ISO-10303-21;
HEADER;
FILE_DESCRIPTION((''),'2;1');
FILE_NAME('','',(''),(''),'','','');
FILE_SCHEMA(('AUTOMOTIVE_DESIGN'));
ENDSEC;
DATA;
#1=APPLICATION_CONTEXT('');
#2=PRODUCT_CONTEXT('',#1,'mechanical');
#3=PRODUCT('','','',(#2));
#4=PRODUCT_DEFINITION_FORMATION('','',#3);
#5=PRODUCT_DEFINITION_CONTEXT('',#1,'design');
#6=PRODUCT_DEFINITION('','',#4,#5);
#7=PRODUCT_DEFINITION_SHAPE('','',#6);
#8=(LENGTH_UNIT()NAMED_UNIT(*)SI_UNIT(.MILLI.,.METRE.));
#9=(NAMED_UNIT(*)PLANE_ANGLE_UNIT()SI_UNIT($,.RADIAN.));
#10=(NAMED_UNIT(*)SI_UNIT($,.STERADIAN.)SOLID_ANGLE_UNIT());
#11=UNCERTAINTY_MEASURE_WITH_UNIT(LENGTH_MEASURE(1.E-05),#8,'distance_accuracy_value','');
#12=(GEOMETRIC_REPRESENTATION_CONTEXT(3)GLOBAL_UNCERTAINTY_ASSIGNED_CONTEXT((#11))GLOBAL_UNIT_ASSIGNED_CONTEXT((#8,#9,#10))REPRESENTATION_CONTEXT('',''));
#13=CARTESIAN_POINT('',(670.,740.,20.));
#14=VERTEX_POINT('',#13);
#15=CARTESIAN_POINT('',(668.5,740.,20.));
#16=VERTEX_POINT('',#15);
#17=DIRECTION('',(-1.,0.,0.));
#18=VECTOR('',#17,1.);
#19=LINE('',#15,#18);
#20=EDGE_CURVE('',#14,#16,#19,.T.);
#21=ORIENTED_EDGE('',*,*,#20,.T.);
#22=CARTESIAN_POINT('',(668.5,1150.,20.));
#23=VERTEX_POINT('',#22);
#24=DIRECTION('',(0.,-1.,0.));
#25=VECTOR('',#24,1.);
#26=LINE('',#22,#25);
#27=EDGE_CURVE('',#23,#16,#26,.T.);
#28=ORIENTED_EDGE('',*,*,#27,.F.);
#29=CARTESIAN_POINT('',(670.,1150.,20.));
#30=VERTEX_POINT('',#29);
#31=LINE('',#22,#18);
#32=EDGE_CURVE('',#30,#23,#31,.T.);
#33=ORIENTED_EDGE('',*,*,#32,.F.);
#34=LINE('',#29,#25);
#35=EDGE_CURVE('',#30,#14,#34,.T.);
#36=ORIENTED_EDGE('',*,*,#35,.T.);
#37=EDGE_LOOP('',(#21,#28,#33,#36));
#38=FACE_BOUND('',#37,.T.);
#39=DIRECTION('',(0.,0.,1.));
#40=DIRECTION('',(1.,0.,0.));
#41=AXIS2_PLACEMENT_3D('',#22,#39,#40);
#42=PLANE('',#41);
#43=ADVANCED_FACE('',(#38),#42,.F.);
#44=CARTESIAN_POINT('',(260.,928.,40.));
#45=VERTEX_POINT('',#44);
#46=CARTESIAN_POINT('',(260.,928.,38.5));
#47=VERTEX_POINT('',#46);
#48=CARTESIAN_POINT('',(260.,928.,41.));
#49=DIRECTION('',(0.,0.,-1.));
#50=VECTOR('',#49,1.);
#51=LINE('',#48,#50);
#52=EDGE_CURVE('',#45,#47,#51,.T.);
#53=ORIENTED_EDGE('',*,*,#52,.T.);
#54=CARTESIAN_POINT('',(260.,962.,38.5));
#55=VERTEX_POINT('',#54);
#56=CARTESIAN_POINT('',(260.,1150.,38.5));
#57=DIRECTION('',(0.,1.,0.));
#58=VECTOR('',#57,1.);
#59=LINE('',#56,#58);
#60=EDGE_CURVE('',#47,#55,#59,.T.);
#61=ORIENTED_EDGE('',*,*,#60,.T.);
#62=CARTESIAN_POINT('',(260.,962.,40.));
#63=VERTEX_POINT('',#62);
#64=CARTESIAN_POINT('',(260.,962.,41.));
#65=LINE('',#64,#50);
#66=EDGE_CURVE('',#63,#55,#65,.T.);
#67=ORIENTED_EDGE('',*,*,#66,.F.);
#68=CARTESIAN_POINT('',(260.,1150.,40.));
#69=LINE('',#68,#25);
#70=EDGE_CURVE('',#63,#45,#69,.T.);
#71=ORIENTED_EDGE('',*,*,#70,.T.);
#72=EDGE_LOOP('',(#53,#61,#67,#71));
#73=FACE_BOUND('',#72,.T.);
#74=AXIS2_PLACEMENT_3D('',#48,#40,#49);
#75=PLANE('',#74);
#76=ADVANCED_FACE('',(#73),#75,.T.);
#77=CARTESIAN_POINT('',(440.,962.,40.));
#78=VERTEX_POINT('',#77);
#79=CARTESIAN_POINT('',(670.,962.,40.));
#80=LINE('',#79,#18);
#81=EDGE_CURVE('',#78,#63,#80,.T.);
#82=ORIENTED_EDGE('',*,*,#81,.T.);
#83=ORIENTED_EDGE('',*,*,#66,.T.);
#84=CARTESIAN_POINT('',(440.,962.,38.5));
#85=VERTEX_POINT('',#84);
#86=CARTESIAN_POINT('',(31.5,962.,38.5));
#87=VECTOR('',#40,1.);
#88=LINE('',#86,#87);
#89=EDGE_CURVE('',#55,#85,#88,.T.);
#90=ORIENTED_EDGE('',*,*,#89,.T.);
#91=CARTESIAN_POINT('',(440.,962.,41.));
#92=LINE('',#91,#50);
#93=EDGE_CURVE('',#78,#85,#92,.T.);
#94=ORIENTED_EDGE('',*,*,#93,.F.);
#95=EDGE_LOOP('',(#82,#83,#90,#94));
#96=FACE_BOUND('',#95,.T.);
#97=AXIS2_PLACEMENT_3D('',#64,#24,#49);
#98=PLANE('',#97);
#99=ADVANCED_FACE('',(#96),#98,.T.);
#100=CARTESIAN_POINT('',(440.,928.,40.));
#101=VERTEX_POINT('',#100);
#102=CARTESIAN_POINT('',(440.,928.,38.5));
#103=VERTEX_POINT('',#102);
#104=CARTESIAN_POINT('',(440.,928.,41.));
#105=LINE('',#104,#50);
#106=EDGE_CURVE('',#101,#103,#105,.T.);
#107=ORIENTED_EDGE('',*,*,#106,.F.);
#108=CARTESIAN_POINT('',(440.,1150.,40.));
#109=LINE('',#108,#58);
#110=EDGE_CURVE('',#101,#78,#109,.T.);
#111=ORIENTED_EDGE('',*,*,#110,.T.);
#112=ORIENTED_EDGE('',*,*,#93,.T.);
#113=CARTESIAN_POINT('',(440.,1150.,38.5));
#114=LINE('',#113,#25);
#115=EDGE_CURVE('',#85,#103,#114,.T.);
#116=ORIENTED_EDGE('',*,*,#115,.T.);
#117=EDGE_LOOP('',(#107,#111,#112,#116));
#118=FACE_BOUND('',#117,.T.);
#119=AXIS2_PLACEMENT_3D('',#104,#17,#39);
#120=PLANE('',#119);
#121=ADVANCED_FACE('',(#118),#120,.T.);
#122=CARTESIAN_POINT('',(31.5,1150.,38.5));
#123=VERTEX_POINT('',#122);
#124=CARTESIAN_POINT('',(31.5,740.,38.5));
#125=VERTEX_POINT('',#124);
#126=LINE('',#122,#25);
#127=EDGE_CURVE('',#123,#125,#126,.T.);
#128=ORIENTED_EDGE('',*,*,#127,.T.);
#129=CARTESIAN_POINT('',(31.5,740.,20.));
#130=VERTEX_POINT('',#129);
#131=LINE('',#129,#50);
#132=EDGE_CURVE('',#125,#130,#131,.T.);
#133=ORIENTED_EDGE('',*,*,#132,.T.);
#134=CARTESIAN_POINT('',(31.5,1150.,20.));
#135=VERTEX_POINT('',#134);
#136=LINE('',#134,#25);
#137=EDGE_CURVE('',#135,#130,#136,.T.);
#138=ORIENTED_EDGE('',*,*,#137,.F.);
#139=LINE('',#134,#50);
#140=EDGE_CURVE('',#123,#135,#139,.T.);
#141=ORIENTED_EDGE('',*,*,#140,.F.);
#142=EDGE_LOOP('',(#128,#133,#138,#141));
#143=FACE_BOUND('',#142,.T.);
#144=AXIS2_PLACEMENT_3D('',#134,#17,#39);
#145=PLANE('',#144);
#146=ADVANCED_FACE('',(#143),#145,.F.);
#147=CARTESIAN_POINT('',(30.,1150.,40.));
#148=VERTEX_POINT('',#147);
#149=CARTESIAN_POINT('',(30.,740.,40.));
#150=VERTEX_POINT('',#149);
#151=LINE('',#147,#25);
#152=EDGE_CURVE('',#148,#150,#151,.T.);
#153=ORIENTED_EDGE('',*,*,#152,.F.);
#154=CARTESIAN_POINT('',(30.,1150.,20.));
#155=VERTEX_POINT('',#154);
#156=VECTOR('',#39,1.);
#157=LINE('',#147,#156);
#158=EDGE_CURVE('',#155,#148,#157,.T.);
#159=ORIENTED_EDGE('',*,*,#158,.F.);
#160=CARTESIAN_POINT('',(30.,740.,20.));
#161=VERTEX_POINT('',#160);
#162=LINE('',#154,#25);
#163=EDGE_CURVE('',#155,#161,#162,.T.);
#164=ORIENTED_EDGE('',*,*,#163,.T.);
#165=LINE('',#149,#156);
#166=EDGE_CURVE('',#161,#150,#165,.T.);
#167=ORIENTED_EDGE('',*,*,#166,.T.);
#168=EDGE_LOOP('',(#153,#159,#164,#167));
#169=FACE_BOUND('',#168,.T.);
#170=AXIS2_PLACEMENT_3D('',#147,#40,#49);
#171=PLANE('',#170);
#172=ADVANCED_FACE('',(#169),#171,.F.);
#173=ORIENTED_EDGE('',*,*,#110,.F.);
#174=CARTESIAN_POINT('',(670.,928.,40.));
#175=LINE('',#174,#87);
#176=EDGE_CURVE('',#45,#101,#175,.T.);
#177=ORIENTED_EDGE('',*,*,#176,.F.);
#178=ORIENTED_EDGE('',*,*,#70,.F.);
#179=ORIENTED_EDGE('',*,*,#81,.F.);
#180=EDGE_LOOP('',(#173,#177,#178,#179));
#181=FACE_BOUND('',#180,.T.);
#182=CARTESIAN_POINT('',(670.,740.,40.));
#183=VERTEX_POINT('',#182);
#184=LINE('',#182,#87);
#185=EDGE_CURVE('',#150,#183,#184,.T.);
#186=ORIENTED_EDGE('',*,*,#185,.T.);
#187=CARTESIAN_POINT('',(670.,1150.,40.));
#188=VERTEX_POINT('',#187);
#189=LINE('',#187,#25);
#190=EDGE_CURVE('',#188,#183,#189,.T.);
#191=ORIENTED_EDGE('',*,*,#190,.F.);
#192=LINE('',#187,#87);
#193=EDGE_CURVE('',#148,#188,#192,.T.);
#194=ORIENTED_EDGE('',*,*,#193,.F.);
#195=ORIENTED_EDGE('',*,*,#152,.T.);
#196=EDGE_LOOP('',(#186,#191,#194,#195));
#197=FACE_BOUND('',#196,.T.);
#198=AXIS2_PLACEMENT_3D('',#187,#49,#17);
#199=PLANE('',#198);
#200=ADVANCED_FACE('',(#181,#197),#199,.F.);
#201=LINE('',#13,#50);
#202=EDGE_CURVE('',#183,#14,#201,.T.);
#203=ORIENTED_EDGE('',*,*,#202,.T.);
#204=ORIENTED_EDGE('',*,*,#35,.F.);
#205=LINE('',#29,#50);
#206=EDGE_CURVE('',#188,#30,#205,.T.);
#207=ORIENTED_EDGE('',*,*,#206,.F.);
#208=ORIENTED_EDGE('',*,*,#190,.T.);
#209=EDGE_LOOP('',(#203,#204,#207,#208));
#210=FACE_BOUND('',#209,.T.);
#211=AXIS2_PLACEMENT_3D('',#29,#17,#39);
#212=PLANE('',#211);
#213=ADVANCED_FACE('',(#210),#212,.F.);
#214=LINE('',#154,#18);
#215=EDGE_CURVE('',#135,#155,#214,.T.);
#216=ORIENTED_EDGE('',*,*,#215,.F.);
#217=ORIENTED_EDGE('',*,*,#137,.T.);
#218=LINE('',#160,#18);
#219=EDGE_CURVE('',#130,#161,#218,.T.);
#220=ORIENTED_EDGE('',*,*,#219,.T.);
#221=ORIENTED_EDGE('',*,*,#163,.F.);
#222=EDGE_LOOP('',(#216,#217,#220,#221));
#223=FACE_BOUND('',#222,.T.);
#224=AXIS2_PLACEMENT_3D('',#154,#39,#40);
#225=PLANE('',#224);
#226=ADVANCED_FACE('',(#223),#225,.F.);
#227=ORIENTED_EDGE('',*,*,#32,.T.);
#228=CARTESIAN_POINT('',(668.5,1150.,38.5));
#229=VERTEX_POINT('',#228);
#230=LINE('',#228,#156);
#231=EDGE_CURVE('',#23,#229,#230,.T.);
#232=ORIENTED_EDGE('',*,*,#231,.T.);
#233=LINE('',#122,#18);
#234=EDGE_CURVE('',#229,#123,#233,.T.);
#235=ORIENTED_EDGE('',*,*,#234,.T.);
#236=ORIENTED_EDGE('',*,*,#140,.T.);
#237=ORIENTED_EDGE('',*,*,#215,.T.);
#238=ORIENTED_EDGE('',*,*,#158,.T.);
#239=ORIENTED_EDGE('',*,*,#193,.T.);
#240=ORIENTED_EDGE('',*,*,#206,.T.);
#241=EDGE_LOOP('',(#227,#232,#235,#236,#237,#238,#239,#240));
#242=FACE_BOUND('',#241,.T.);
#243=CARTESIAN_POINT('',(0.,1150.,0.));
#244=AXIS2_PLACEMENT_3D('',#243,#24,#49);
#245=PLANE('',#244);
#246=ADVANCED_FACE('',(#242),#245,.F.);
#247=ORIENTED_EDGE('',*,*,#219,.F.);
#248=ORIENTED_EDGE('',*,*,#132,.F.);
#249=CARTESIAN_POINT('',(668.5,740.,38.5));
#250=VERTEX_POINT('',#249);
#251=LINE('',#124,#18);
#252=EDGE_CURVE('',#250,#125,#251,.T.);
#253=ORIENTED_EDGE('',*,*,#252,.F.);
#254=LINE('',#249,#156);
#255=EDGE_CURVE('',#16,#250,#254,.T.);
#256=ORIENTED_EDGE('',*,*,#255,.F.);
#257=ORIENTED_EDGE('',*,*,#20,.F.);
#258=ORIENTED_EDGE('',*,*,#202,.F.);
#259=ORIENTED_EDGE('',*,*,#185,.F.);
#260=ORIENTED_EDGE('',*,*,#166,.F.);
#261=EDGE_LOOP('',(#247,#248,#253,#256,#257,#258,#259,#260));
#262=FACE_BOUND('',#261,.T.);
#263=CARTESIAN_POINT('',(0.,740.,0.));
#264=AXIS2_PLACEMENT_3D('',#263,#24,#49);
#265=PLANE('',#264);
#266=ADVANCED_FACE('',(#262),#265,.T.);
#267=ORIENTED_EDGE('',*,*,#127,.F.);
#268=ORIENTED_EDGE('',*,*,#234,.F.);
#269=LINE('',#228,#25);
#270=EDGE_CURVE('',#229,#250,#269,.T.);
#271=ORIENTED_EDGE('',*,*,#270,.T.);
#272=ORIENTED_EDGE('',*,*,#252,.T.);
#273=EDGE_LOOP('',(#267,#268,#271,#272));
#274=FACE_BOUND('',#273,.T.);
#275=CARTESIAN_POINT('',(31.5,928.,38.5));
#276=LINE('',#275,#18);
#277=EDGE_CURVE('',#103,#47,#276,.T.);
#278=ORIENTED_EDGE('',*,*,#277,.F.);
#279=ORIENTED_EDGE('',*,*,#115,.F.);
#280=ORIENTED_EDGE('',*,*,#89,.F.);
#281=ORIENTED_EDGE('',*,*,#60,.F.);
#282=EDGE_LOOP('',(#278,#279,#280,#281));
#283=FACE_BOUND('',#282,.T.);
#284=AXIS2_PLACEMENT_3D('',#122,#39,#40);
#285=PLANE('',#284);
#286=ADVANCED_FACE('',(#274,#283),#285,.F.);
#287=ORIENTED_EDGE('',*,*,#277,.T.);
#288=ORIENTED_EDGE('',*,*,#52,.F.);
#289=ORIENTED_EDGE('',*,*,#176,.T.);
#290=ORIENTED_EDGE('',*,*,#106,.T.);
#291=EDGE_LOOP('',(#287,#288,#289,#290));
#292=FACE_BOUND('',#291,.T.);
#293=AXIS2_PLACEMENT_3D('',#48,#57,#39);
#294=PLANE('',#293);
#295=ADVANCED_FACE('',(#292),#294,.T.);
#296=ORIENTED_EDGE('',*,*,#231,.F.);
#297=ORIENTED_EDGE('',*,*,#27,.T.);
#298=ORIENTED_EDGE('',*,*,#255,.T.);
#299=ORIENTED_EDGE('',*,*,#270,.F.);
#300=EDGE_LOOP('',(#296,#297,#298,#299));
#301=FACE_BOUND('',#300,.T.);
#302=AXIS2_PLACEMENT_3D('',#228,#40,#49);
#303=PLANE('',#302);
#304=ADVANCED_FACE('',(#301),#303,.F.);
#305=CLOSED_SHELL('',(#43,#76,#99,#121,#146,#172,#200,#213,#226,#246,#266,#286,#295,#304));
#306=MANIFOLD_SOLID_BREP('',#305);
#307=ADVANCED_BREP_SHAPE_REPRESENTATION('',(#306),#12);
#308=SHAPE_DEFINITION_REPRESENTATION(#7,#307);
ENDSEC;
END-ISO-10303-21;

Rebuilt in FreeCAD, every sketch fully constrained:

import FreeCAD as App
import Part
import Sketcher
from FreeCAD import Vector
Q = App.Units.Quantity


def add_polygon(sketch, points):
    """Adds a closed chain of lines whose ends are joined by coincident constraints."""
    first, n = sketch.GeometryCount, len(points)
    for a, b in zip(points, points[1:] + points[:1]):
        sketch.addGeometry(Part.LineSegment(App.Vector(*a, 0), App.Vector(*b, 0)), False)
    for i in range(n):
        sketch.addConstraint(Sketcher.Constraint("Coincident", first + i, 2, first + (i + 1) % n, 1))

doc = App.newDocument("Part")
body = doc.addObject("PartDesign::Body", "Body")

# Sketch on XZ plane
sketch1 = doc.addObject("Sketcher::SketchObject", "Sketch")
body.addObject(sketch1)
sketch1.AttachmentSupport = (doc.XZ_Plane, [""])
sketch1.MapMode = "FlatFace"
sketch1.AttachmentOffset = App.Placement(Vector(0, 0, -740), App.Rotation())
add_polygon(sketch1, [(30, 20), (30, 40), (670, 40), (670, 20), (668.5, 20), (668.5, 38.5), (31.5, 38.5), (31.5, 20)])  # lines 0-7
sketch1.addConstraint(Sketcher.Constraint("Vertical", 0))
sketch1.addConstraint(Sketcher.Constraint("Horizontal", 1))
sketch1.addConstraint(Sketcher.Constraint("Vertical", 2))
sketch1.addConstraint(Sketcher.Constraint("Horizontal", 3))
sketch1.addConstraint(Sketcher.Constraint("Vertical", 4))
sketch1.addConstraint(Sketcher.Constraint("Horizontal", 5))
sketch1.addConstraint(Sketcher.Constraint("Vertical", 6))
sketch1.addConstraint(Sketcher.Constraint("Horizontal", 7))
sketch1.addConstraint(Sketcher.Constraint("Horizontal", 3, 2, 6, 2))
sketch1.addConstraint(Sketcher.Constraint("Equal", 3, 7))
sketch1.addConstraint(Sketcher.Constraint("DistanceX", 1, 1, 1, 2, Q("640 mm")))
sketch1.addConstraint(Sketcher.Constraint("DistanceX", 5, 2, 5, 1, Q("637 mm")))
sketch1.addConstraint(Sketcher.Constraint("DistanceY", 0, 1, 0, 2, Q("20 mm")))
sketch1.addConstraint(Sketcher.Constraint("DistanceY", 4, 1, 4, 2, Q("18.5 mm")))
sketch1.addConstraint(Sketcher.Constraint("DistanceX", -1, 1, 0, 2, Q("30 mm")))
sketch1.addConstraint(Sketcher.Constraint("DistanceY", -1, 1, 0, 2, Q("40 mm")))
pad1 = doc.addObject("PartDesign::Pad", "Pad")
body.addObject(pad1)
pad1.Profile = sketch1
pad1.Length = 410
pad1.Reversed = True

# Sketch on XY plane
sketch2 = doc.addObject("Sketcher::SketchObject", "Sketch001")
body.addObject(sketch2)
sketch2.AttachmentSupport = (doc.XY_Plane, [""])
sketch2.MapMode = "FlatFace"
sketch2.AttachmentOffset = App.Placement(Vector(0, 0, 27), App.Rotation())
add_polygon(sketch2, [(260, 962), (260, 928), (440, 928), (440, 962)])  # lines 0-3
sketch2.addConstraint(Sketcher.Constraint("Vertical", 0))
sketch2.addConstraint(Sketcher.Constraint("Horizontal", 1))
sketch2.addConstraint(Sketcher.Constraint("Vertical", 2))
sketch2.addConstraint(Sketcher.Constraint("Horizontal", 3))
sketch2.addConstraint(Sketcher.Constraint("DistanceX", 1, 1, 1, 2, Q("180 mm")))
sketch2.addConstraint(Sketcher.Constraint("DistanceY", 0, 2, 0, 1, Q("34 mm")))
sketch2.addConstraint(Sketcher.Constraint("DistanceX", -1, 1, 0, 2, Q("260 mm")))
sketch2.addConstraint(Sketcher.Constraint("DistanceY", -1, 1, 0, 2, Q("928 mm")))
pocket1 = doc.addObject("PartDesign::Pocket", "Pocket")
body.addObject(pocket1)
pocket1.Profile = sketch2
pocket1.Length = 14
pocket1.Reversed = True

doc.recompute()
